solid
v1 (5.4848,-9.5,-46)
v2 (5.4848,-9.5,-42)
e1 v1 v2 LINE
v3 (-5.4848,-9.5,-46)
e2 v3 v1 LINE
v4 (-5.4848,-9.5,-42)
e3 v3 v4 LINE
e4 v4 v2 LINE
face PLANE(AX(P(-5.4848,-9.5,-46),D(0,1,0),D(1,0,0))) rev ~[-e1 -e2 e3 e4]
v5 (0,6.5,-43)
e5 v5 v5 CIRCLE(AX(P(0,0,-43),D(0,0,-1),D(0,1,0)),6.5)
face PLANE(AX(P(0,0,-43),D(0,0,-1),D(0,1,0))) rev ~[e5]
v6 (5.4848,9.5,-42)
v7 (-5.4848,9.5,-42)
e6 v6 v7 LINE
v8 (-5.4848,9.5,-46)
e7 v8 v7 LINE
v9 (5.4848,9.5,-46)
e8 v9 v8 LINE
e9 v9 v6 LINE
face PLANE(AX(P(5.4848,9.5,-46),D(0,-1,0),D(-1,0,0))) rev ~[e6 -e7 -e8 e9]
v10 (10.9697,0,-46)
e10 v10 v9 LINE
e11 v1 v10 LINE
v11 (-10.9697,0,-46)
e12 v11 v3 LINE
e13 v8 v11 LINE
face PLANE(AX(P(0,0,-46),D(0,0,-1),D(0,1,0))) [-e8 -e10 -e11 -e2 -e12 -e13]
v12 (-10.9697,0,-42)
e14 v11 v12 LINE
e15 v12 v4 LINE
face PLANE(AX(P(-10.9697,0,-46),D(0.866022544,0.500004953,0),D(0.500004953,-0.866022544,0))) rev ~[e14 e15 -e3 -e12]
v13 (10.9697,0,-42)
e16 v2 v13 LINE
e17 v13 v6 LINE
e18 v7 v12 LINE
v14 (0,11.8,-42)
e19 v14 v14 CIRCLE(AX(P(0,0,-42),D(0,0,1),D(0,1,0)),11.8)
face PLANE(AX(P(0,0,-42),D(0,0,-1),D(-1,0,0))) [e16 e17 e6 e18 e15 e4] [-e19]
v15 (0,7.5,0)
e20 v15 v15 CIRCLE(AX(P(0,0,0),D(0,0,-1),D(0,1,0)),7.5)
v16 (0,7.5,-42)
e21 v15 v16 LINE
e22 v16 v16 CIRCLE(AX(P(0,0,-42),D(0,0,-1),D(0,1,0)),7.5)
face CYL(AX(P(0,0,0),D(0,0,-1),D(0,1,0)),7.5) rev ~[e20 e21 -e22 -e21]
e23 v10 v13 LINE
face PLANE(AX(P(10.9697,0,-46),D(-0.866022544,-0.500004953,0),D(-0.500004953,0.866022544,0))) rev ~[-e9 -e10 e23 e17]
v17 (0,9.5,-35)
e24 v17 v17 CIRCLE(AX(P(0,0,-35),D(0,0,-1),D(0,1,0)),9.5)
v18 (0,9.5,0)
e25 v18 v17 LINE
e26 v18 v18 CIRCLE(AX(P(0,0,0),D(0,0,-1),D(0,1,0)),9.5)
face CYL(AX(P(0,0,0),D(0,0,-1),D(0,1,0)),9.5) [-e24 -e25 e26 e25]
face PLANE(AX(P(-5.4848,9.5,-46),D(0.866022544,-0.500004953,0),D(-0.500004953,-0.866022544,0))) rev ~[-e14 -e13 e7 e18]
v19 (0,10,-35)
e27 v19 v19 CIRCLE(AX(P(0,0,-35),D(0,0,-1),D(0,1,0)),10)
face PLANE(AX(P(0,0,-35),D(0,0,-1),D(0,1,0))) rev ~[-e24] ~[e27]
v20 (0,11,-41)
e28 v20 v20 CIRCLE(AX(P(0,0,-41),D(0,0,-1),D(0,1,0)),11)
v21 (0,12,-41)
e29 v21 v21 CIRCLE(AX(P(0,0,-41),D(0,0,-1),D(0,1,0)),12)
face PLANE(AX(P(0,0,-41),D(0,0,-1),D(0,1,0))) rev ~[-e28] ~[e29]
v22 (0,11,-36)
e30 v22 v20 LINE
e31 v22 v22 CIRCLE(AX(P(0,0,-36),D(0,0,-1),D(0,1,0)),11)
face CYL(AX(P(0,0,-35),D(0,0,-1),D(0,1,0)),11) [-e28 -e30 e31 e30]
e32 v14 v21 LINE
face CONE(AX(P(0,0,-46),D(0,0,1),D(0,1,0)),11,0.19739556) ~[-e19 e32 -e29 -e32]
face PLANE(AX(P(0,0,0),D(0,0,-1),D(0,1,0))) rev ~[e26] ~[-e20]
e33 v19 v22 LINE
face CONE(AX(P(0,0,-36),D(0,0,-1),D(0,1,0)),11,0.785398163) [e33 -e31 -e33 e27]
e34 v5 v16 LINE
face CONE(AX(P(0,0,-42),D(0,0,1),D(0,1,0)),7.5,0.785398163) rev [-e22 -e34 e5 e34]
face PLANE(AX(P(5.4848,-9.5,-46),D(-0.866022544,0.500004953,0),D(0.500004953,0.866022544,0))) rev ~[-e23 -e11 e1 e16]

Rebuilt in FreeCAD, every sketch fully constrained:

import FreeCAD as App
import Part
import Sketcher
from FreeCAD import Vector
Q = App.Units.Quantity


def edges_at(feature, points):
    """Names of the edges that pass closest to the given points."""
    edges = feature.Shape.Edges
    near = lambda p: min(range(len(edges)), key=lambda i: edges[i].distToShape(Part.Vertex(*p))[0])
    return sorted({f"Edge{near(p) + 1}" for p in points})


def add_polygon(sketch, points):
    """Adds a closed chain of lines whose ends are joined by coincident constraints."""
    first, n = sketch.GeometryCount, len(points)
    for a, b in zip(points, points[1:] + points[:1]):
        sketch.addGeometry(Part.LineSegment(App.Vector(*a, 0), App.Vector(*b, 0)), False)
    for i in range(n):
        sketch.addConstraint(Sketcher.Constraint("Coincident", first + i, 2, first + (i + 1) % n, 1))

doc = App.newDocument("Part")
body = doc.addObject("PartDesign::Body", "Body")

# Sketch on YZ plane
sketch1 = body.newObject("Sketcher::SketchObject", "Sketch")
sketch1.AttachmentSupport = (doc.getObject("YZ_Plane"), [""])
sketch1.MapMode = "FlatFace"
add_polygon(sketch1, [(9.5, -35), (9.5, 0), (7.5, 0), (7.5, -43), (0, -43), (0, -46), (11, -46), (12, -41), (11, -41), (11, -35)])  # lines 0-9
sketch1.addConstraint([
    Sketcher.Constraint("Vertical", 0),
    Sketcher.Constraint("Horizontal", 1),
    Sketcher.Constraint("Vertical", 2),
    Sketcher.Constraint("Horizontal", 3),
    Sketcher.Constraint("Vertical", 4),
    Sketcher.Constraint("Horizontal", 5),
    Sketcher.Constraint("Horizontal", 7),
    Sketcher.Constraint("Vertical", 8),
    Sketcher.Constraint("Horizontal", 9),
    Sketcher.Constraint("PointOnObject", 0, 2, -1),
    Sketcher.Constraint("PointOnObject", 3, 2, -2),
    Sketcher.Constraint("Vertical", 5, 2, 7, 2),
    Sketcher.Constraint("DistanceX", 7, 2, 7, 1, Q("1 mm")),
    Sketcher.Constraint("DistanceY", 2, 2, 2, 1, Q("43 mm")),
    Sketcher.Constraint("DistanceY", 4, 2, 4, 1, Q("3 mm")),
    Sketcher.Constraint("DistanceY", 8, 1, 8, 2, Q("6 mm")),
    Sketcher.Constraint("DistanceY", 5, 2, 6, 2, Q("5 mm")),
    Sketcher.Constraint("DistanceX", 1, 2, 1, 1, Q("2 mm")),
    Sketcher.Constraint("DistanceX", 5, 1, 5, 2, Q("11 mm")),
    Sketcher.Constraint("DistanceX", 3, 2, 3, 1, Q("7.5 mm")),
])
revolution = body.newObject("PartDesign::Revolution", "Revolution")
revolution.Profile = sketch1
revolution.ReferenceAxis = (sketch1, ["V_Axis"])
revolution.Angle = 360
doc.recompute()

chamfer = body.newObject("PartDesign::Chamfer", "Chamfer")
chamfer.Base = (revolution, edges_at(revolution, [(0, -7.5, -43)]))
chamfer.Size = 1

# Sketch on XY plane
sketch2 = body.newObject("Sketcher::SketchObject", "Sketch001")
sketch2.AttachmentSupport = (doc.getObject("XY_Plane"), [""])
sketch2.MapMode = "FlatFace"
sketch2.AttachmentOffset = App.Placement(Vector(0, 0, -46), App.Rotation())
sketch2.addGeometry(Part.Circle(Vector(0, 0, 0), Vector(0, 0, 1), 12), False)  # 0
add_polygon(sketch2, [(-5.4848, 9.5), (-10.9697, 0), (-5.4848, -9.5), (5.4848, -9.5), (10.9697, 0), (5.4848, 9.5)])  # lines 1-6
sketch2.addConstraint([
    Sketcher.Constraint("Horizontal", 3),
    Sketcher.Constraint("Horizontal", 6),
    Sketcher.Constraint("Coincident", 0, 3, -1, 1),
    Sketcher.Constraint("Symmetric", 1, 2, 4, 2, -1, 1),
    Sketcher.Constraint("Symmetric", 2, 2, 5, 2, -1, 1),
    Sketcher.Constraint("PointOnObject", 1, 2, -1),
    Sketcher.Constraint("Parallel", 1, 4),
    Sketcher.Constraint("Vertical", 3, 2, 5, 2),
    Sketcher.Constraint("Diameter", 0, Q("24 mm")),
    Sketcher.Constraint("DistanceY", 3, 2, 5, 2, Q("19 mm")),
    Sketcher.Constraint("Angle", 1, Q("-120.0003 deg")),
    Sketcher.Constraint("DistanceX", 3, 1, 3, 2, Q("10.9696 mm")),
])
pocket1 = body.newObject("PartDesign::Pocket", "Pocket")
pocket1.Profile = sketch2
pocket1.Length = 4
pocket1.Reversed = True
doc.recompute()

chamfer2 = body.newObject("PartDesign::Chamfer", "Chamfer001")
chamfer2.Base = (pocket1, edges_at(pocket1, [(0, -11, -35)]))
chamfer2.Size = 1

doc.recompute()
